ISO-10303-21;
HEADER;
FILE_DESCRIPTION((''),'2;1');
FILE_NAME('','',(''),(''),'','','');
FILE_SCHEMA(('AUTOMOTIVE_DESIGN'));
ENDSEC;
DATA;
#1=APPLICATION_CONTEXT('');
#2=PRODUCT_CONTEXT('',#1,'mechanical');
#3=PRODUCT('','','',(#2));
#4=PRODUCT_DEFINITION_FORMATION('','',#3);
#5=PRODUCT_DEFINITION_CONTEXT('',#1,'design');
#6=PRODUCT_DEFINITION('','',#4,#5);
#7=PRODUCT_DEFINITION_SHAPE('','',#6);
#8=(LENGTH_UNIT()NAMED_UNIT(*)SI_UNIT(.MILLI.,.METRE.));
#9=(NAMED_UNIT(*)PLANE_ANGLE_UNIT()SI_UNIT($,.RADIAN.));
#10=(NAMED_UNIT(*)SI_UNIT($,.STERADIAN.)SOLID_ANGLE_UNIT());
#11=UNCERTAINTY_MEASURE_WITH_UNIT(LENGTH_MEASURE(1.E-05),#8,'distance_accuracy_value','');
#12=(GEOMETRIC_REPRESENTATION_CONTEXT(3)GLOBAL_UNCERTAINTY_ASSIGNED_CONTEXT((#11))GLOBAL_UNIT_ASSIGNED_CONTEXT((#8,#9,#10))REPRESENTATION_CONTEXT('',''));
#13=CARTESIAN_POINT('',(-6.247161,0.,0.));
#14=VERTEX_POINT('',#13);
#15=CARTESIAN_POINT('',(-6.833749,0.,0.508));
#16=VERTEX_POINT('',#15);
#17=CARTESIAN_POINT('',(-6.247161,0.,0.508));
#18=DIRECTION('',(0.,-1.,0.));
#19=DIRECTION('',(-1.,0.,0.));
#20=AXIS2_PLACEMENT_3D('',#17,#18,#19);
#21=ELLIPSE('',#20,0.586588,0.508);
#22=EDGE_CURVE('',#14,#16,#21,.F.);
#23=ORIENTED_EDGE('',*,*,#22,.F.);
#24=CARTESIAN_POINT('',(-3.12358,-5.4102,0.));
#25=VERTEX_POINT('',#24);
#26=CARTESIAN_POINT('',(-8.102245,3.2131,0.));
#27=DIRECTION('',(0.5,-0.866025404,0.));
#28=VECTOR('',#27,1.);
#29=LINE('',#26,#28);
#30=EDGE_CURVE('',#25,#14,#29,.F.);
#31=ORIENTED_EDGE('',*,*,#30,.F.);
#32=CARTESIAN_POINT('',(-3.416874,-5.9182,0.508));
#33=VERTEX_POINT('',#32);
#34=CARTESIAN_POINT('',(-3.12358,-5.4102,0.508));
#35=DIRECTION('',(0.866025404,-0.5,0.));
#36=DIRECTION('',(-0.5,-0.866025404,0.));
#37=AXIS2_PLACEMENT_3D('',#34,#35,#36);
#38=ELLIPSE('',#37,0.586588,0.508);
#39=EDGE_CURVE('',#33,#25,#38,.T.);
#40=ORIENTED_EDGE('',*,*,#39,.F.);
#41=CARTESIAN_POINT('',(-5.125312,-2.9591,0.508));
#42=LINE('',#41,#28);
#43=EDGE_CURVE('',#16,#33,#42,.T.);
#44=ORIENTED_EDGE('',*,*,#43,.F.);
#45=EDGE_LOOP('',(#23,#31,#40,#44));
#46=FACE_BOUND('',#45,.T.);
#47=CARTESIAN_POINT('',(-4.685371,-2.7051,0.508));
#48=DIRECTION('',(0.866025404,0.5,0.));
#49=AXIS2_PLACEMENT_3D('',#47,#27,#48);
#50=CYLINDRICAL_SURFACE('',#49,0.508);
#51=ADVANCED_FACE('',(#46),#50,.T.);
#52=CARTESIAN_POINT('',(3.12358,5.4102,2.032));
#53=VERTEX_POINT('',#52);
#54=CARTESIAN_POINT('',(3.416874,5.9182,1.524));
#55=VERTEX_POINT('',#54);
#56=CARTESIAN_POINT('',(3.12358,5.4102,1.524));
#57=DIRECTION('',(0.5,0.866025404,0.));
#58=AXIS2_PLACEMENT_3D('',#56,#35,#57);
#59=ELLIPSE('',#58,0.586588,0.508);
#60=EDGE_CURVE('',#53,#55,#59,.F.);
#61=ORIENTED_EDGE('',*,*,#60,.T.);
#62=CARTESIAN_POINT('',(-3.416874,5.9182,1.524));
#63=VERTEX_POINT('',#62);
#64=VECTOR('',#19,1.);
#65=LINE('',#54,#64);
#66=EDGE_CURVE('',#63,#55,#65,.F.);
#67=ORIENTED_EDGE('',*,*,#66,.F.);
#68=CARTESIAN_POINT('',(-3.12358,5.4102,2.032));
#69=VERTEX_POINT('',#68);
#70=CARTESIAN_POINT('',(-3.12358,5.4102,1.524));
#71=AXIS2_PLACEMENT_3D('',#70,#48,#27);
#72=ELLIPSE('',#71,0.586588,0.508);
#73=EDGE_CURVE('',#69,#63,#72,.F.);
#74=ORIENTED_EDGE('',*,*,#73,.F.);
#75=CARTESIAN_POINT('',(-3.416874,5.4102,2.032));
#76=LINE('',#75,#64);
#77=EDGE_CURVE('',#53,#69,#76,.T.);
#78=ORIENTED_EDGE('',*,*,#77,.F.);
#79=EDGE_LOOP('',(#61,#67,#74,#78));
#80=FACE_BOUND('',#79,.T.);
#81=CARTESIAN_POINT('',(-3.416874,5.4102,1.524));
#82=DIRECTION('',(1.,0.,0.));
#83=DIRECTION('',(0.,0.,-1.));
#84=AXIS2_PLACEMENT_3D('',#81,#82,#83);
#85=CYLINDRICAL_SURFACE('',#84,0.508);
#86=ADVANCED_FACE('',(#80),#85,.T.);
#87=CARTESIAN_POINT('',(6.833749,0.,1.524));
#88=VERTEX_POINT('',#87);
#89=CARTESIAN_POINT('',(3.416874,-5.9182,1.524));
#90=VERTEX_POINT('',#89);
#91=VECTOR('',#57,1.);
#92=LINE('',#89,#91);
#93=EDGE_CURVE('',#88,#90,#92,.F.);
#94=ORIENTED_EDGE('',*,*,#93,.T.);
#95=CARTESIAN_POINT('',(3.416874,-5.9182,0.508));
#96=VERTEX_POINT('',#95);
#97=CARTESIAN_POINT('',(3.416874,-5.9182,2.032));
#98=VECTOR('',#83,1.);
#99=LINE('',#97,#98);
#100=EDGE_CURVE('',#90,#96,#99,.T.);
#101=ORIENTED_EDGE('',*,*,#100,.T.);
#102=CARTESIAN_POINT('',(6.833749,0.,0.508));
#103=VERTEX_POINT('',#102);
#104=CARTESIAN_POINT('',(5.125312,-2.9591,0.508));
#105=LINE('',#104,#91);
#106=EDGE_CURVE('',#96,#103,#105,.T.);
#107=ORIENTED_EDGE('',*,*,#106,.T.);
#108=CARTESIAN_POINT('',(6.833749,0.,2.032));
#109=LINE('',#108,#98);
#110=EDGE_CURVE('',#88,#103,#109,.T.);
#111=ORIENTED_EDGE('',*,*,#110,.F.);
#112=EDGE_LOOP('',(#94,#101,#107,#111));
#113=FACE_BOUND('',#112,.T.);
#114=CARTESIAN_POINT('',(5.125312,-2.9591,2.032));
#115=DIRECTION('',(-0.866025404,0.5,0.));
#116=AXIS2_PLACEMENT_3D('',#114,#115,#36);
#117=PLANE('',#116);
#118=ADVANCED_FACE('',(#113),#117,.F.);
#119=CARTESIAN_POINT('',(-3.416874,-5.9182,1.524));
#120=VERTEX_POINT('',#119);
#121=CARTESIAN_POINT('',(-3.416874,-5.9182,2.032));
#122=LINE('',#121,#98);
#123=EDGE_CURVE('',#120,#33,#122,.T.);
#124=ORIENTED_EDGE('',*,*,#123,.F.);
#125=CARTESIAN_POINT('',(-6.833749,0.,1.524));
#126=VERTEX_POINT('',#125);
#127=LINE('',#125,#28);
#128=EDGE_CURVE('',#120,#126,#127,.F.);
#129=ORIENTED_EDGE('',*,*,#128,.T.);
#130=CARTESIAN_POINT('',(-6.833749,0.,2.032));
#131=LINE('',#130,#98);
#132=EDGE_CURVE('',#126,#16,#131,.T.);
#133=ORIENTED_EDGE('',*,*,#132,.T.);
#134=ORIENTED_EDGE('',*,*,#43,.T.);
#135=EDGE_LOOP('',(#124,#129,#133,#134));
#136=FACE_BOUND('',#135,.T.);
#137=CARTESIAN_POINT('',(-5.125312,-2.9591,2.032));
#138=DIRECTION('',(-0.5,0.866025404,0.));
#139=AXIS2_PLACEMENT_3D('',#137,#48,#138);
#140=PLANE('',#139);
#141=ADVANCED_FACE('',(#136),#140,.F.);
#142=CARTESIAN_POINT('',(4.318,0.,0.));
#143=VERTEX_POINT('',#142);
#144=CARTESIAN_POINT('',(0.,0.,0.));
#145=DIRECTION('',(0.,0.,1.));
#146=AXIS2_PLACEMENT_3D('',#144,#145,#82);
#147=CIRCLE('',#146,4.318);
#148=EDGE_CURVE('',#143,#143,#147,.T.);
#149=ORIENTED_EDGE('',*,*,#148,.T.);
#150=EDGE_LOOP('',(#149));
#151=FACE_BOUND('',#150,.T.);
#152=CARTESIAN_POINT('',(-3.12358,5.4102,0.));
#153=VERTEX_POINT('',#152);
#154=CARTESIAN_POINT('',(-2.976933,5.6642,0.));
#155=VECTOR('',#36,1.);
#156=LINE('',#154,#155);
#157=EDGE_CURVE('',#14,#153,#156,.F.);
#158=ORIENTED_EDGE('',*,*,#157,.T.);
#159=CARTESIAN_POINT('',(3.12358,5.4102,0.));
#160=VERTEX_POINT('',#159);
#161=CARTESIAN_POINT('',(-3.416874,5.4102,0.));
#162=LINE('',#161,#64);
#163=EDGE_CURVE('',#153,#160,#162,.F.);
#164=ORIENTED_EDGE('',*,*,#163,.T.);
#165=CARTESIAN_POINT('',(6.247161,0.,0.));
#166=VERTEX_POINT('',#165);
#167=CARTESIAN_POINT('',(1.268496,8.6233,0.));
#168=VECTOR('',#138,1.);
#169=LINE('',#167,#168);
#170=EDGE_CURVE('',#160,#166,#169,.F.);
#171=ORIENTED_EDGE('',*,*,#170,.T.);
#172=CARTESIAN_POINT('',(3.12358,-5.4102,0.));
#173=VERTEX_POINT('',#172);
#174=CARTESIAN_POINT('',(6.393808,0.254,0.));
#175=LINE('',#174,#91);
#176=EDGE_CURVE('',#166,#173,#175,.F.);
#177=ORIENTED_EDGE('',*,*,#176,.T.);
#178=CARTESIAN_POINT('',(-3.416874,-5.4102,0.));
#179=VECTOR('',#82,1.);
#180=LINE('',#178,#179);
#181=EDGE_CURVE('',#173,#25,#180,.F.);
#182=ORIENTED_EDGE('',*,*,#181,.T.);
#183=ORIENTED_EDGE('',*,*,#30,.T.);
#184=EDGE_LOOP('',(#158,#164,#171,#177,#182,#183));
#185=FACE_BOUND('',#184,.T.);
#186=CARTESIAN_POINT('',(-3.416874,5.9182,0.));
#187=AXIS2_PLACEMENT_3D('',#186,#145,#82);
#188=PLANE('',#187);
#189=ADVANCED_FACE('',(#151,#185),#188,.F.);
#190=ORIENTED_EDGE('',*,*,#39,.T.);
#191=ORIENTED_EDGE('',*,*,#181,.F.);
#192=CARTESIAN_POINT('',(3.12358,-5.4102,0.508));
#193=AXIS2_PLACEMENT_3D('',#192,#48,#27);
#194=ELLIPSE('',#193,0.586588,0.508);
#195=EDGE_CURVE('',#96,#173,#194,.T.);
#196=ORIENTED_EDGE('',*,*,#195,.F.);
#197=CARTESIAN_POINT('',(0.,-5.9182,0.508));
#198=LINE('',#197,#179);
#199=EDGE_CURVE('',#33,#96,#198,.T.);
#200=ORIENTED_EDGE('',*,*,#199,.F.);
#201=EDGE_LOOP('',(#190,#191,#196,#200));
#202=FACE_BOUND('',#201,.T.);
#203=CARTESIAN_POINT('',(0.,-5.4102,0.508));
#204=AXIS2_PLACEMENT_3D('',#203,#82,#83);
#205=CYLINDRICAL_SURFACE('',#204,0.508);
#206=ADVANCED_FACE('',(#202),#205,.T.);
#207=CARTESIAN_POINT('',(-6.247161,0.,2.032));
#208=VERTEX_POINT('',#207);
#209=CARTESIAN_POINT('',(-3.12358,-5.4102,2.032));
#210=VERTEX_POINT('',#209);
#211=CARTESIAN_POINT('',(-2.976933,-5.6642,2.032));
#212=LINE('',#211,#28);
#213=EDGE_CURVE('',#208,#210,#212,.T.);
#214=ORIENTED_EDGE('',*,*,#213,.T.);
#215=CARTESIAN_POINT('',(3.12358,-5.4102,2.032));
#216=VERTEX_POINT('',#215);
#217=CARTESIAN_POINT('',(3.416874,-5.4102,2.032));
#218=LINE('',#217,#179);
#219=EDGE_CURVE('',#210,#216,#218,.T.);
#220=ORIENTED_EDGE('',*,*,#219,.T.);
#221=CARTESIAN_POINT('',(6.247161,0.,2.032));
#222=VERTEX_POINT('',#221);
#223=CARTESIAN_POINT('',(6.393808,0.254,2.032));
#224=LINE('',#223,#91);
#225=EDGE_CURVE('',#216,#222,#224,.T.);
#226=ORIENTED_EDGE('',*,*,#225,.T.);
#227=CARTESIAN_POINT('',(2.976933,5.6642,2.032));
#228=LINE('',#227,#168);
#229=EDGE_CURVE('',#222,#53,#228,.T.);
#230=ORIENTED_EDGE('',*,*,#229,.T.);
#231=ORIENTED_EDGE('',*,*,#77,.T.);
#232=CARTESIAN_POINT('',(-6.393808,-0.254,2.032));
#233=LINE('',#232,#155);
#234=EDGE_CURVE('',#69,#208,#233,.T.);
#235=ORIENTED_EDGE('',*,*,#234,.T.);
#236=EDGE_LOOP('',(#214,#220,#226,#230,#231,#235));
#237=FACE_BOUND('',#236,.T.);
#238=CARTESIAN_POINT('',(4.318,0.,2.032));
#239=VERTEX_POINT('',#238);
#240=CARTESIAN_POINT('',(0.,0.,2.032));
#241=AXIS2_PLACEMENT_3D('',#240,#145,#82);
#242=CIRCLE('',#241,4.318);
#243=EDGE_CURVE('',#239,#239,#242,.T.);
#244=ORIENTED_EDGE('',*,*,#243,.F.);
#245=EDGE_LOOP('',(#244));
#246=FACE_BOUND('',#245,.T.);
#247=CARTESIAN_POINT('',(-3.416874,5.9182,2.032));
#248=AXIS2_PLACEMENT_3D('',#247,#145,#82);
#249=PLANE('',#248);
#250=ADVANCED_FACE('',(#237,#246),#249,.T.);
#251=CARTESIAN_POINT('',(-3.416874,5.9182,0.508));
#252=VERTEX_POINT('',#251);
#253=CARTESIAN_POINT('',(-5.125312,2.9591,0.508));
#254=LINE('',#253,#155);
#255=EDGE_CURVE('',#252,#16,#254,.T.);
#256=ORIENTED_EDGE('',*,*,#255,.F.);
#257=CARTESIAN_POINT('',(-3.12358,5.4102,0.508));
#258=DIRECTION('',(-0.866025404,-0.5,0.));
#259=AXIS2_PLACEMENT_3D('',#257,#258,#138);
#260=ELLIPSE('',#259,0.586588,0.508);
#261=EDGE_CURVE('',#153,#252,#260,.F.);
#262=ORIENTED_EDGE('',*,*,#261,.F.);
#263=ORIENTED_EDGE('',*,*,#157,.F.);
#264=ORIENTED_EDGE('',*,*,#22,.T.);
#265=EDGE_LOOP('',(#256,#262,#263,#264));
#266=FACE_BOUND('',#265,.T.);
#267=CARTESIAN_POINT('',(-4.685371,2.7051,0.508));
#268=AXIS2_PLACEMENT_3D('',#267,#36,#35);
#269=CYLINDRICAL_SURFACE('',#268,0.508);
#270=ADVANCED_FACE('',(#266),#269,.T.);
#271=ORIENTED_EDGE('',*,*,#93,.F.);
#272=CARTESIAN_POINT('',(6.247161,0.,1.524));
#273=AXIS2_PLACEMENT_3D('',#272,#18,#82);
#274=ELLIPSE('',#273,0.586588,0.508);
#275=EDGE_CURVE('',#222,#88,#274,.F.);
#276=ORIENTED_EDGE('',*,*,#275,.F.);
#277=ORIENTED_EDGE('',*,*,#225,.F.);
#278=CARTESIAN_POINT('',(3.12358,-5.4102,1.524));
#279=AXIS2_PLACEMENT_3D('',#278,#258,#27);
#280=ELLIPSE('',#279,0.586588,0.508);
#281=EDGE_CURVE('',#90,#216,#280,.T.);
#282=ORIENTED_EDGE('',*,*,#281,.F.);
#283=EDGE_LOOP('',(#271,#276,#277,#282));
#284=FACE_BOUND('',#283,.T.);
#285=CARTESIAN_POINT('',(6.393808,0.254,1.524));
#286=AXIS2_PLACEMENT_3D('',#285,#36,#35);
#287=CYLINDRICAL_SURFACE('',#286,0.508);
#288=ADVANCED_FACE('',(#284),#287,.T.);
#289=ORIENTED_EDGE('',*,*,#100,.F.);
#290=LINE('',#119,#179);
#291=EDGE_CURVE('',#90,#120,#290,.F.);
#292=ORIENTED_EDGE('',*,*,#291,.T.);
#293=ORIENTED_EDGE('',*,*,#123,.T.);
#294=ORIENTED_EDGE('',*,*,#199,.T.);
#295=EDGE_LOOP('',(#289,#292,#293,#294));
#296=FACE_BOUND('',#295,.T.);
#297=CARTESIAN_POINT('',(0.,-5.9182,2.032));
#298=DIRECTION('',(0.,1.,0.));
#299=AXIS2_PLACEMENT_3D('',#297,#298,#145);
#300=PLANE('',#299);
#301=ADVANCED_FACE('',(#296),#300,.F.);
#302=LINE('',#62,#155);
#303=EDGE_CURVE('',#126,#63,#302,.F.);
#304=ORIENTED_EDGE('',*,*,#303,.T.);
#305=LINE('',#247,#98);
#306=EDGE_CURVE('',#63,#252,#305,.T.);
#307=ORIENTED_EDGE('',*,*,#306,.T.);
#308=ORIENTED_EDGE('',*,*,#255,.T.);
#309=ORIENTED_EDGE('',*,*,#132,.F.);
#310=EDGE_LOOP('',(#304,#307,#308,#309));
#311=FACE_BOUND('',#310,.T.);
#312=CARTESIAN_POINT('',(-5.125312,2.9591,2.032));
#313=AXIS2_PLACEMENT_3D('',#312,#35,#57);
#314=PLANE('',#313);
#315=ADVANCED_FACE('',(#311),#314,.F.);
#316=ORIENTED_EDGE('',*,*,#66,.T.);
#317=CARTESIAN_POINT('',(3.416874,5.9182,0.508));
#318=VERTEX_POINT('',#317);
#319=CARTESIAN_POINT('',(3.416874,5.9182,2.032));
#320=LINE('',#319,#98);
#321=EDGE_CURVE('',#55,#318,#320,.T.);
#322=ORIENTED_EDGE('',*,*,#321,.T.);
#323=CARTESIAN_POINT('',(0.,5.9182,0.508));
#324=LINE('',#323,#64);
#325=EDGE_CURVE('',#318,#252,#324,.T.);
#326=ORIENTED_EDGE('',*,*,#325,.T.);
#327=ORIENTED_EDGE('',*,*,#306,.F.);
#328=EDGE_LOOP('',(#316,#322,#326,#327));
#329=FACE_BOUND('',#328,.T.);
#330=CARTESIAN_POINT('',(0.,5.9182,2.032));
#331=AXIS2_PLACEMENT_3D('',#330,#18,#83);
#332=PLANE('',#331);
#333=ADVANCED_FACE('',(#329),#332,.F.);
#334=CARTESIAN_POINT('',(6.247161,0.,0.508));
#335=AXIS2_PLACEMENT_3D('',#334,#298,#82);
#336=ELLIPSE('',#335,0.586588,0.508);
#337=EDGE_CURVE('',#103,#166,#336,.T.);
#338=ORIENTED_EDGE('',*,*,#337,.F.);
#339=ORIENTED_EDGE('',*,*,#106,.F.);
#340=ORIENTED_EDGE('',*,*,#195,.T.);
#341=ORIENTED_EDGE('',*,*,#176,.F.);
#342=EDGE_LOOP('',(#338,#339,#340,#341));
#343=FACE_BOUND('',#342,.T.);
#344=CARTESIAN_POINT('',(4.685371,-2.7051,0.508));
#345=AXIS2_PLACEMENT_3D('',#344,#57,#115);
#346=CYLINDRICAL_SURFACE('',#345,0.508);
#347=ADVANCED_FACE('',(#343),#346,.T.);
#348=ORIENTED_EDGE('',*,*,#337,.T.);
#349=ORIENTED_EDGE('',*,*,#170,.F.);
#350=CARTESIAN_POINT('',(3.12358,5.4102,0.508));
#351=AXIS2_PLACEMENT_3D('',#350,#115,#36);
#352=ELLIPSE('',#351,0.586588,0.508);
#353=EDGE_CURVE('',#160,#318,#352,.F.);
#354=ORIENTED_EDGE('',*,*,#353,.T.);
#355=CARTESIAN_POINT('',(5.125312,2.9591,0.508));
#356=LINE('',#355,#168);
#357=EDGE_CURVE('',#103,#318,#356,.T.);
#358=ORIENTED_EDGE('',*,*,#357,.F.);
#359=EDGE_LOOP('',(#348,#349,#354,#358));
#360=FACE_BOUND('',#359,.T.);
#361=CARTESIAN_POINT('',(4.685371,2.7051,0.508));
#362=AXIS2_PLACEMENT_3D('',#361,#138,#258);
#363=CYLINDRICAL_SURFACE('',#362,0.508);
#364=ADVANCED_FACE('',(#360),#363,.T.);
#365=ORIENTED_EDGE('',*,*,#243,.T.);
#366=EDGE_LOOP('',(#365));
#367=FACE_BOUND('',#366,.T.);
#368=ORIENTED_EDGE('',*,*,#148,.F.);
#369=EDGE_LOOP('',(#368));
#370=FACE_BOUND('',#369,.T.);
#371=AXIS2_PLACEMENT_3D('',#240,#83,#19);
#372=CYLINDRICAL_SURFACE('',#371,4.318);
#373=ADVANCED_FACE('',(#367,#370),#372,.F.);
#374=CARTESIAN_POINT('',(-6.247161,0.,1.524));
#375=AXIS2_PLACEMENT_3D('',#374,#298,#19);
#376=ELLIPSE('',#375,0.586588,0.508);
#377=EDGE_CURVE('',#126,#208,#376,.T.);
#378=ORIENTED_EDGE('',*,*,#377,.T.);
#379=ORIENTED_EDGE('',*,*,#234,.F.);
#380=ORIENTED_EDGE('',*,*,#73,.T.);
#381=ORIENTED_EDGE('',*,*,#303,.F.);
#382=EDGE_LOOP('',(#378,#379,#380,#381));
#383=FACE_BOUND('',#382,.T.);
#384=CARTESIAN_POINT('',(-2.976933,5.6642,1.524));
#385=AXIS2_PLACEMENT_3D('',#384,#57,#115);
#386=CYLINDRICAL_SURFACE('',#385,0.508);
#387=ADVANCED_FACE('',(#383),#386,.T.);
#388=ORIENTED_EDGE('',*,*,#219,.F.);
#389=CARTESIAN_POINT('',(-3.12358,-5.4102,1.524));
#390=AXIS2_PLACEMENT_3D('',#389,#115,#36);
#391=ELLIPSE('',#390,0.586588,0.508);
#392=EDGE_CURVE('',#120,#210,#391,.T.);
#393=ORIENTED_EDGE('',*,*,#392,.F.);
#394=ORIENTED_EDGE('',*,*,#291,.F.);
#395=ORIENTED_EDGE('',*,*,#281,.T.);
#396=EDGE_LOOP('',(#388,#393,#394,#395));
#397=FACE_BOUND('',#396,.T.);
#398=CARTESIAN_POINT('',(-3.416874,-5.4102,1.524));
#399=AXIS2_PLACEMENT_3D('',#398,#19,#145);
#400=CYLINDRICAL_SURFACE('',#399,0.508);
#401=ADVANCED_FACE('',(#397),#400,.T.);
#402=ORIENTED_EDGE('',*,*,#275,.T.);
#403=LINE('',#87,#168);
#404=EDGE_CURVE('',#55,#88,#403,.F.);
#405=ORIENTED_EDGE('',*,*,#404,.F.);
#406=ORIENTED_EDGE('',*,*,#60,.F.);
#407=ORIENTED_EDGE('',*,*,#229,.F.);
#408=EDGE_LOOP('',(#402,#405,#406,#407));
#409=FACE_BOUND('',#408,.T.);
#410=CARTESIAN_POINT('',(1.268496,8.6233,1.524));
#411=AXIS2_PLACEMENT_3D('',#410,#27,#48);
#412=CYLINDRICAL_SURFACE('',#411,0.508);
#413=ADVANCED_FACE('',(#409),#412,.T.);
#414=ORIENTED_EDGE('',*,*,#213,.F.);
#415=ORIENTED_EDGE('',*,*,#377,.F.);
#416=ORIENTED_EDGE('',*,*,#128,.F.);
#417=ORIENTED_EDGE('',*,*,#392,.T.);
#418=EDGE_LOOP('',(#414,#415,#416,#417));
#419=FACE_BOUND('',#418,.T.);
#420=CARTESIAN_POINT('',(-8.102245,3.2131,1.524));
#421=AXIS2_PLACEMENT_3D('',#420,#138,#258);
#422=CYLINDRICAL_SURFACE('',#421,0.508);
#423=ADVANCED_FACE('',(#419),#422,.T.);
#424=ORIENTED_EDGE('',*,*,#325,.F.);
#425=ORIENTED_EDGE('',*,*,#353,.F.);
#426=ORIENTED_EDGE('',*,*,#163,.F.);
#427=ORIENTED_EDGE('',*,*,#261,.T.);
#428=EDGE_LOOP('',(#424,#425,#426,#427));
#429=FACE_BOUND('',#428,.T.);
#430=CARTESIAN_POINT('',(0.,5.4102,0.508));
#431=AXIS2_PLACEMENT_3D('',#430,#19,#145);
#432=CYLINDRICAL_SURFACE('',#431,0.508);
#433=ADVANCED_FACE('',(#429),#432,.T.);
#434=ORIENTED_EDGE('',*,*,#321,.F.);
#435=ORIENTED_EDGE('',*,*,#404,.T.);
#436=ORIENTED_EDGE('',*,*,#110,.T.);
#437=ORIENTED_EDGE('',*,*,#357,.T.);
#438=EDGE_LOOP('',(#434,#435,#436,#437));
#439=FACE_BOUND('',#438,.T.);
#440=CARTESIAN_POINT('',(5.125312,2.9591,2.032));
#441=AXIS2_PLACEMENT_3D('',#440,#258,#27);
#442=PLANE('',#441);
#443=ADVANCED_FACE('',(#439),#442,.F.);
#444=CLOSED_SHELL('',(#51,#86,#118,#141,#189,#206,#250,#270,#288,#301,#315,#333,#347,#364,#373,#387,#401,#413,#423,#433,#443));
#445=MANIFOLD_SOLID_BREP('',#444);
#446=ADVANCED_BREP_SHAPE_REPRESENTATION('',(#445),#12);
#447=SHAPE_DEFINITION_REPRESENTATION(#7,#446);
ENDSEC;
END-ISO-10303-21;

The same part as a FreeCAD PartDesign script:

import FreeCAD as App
import Part
import Sketcher
Q = App.Units.Quantity


def edges_at(feature, points):
    """Names of the edges that pass closest to the given points."""
    edges = feature.Shape.Edges
    near = lambda p: min(range(len(edges)), key=lambda i: edges[i].distToShape(Part.Vertex(*p))[0])
    return sorted({f"Edge{near(p) + 1}" for p in points})

doc = App.newDocument("Part")
body = doc.addObject("PartDesign::Body", "Body")

sketch1 = body.newObject("Sketcher::SketchObject", "Sketch")
sketch1.AttachmentSupport = (doc.getObject("XY_Plane"), [""])
sketch1.MapMode = "FlatFace"
sketch1.addGeometry(Part.LineSegment(App.Vector(-6.8, 0, 0), App.Vector(-3.4, -5.9, 0)), False)
sketch1.addGeometry(Part.LineSegment(App.Vector(-3.4, -5.9, 0), App.Vector(3.4, -5.9, 0)), False)
sketch1.addGeometry(Part.LineSegment(App.Vector(3.4, -5.9, 0), App.Vector(6.8, 0, 0)), False)
sketch1.addGeometry(Part.LineSegment(App.Vector(6.8, 0, 0), App.Vector(3.4, 5.9, 0)), False)
sketch1.addGeometry(Part.LineSegment(App.Vector(3.4, 5.9, 0), App.Vector(-3.4, 5.9, 0)), False)
sketch1.addGeometry(Part.LineSegment(App.Vector(-3.4, 5.9, 0), App.Vector(-6.8, 0, 0)), False)
sketch1.addGeometry(Part.Circle(App.Vector(0, 0, 0), App.Vector(0, 0, 1), 4.3), False)
sketch1.addConstraint(Sketcher.Constraint("Coincident", 0, 2, 1, 1))
sketch1.addConstraint(Sketcher.Constraint("Coincident", 1, 2, 2, 1))
sketch1.addConstraint(Sketcher.Constraint("Coincident", 2, 2, 3, 1))
sketch1.addConstraint(Sketcher.Constraint("Coincident", 3, 2, 4, 1))
sketch1.addConstraint(Sketcher.Constraint("Coincident", 4, 2, 5, 1))
sketch1.addConstraint(Sketcher.Constraint("Coincident", 5, 2, 0, 1))
sketch1.addConstraint(Sketcher.Constraint("Horizontal", 1))
sketch1.addConstraint(Sketcher.Constraint("Horizontal", 4))
sketch1.addConstraint(Sketcher.Constraint("Coincident", 6, 3, -1, 1))
sketch1.addConstraint(Sketcher.Constraint("Symmetric", 0, 2, 3, 2, -1, 1))
sketch1.addConstraint(Sketcher.Constraint("Symmetric", 2, 2, 5, 2, -1, 1))
sketch1.addConstraint(Sketcher.Constraint("PointOnObject", 2, 2, -1))
sketch1.addConstraint(Sketcher.Constraint("Parallel", 2, 5))
sketch1.addConstraint(Sketcher.Constraint("Vertical", 1, 2, 3, 2))
sketch1.addConstraint(Sketcher.Constraint("Diameter", 6, Q("0.34 in")))
sketch1.addConstraint(Sketcher.Constraint("Angle", 0, Q("-60 deg")))
sketch1.addConstraint(Sketcher.Constraint("DistanceY", 0, 2, -1, 1, Q("0.233 in")))
sketch1.addConstraint(Sketcher.Constraint("DistanceX", 1, 1, 1, 2, Q("6.833749 mm")))
pad1 = body.newObject("PartDesign::Pad", "Pad")
pad1.Profile = sketch1
pad1.Length = Q("0.08 in")
doc.recompute()

fillet = body.newObject("PartDesign::Fillet", "Fillet")
fillet.Base = (pad1, edges_at(pad1, [
    (-5.125, -2.959, 2.032),
    (0, 5.918, 0),
    (5.125, 2.959, 0),
    (5.125, -2.959, 0),
    (0, -5.918, 0),
    (-5.125, -2.959, 0),
    (-5.125, 2.959, 0),
    (0, -5.918, 2.032),
    (5.125, -2.959, 2.032),
    (5.125, 2.959, 2.032),
    (0, 5.918, 2.032),
    (-5.125, 2.959, 2.032),
]))
fillet.Radius = Q("0.02 in")

doc.recompute()
